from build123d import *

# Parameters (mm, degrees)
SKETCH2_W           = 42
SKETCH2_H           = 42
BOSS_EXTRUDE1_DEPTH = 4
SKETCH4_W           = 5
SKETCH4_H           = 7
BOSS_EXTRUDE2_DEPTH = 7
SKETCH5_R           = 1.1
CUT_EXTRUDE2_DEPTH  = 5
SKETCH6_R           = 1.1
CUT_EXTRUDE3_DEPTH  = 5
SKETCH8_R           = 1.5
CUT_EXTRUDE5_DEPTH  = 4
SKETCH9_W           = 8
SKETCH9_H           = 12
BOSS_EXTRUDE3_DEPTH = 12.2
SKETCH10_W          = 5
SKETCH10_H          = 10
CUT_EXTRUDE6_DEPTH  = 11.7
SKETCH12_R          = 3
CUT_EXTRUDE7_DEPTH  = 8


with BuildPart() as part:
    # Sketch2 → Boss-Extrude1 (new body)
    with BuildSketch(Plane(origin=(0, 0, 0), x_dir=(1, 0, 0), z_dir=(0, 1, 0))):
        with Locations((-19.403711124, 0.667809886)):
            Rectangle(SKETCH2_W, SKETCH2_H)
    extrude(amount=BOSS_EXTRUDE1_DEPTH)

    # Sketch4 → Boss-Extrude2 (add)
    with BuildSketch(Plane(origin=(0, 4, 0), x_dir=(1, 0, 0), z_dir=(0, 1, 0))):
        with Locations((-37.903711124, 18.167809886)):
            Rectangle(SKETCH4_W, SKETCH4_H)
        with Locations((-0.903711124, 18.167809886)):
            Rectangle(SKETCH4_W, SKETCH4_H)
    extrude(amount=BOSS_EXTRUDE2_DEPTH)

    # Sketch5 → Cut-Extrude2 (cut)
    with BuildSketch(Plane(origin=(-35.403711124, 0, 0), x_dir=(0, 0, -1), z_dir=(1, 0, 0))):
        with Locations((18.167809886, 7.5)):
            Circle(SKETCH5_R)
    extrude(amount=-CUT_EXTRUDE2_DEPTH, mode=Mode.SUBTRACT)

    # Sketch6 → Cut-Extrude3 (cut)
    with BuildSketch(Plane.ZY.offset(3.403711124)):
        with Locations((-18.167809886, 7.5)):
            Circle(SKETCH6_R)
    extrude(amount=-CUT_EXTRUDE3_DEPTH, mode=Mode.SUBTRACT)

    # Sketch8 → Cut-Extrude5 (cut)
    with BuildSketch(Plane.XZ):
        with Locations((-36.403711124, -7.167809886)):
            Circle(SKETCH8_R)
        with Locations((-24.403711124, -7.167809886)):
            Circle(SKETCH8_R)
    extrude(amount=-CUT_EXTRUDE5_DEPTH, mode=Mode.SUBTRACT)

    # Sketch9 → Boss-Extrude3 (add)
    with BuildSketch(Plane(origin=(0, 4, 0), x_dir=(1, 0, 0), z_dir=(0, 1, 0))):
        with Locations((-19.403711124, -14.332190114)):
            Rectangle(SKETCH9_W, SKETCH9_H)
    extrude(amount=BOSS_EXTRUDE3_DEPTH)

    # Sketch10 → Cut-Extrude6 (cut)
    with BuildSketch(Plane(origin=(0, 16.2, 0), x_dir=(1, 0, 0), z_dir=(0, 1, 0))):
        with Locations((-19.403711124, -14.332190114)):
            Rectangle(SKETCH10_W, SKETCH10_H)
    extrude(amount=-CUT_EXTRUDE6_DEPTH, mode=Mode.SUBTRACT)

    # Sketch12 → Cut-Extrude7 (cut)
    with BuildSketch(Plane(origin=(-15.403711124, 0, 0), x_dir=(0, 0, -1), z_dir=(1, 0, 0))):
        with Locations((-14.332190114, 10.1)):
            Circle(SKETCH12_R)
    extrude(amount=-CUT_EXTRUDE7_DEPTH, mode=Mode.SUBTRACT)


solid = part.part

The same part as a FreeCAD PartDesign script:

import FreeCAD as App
import Part
import Sketcher
from FreeCAD import Vector

doc = App.newDocument("Part")
body = doc.addObject("PartDesign::Body", "Body")

sketch1 = body.newObject("Sketcher::SketchObject", "Sketch")
sketch1.AttachmentSupport = (doc.getObject("XZ_Plane"), [""])
sketch1.MapMode = "FlatFace"
sketch1.addGeometry(Part.LineSegment(Vector(-40, -22, 0), Vector(-40, 20, 0)), False)
sketch1.addGeometry(Part.LineSegment(Vector(-40, 20, 0), Vector(2, 20, 0)), False)
sketch1.addGeometry(Part.LineSegment(Vector(2, 20, 0), Vector(2, -22, 0)), False)
sketch1.addGeometry(Part.LineSegment(Vector(2, -22, 0), Vector(-40, -22, 0)), False)
sketch1.addConstraint(Sketcher.Constraint("Coincident", 0, 2, 1, 1))
sketch1.addConstraint(Sketcher.Constraint("Coincident", 1, 2, 2, 1))
sketch1.addConstraint(Sketcher.Constraint("Coincident", 2, 2, 3, 1))
sketch1.addConstraint(Sketcher.Constraint("Coincident", 3, 2, 0, 1))
sketch1.addConstraint(Sketcher.Constraint("Vertical", 0))
sketch1.addConstraint(Sketcher.Constraint("Horizontal", 1))
sketch1.addConstraint(Sketcher.Constraint("Vertical", 2))
sketch1.addConstraint(Sketcher.Constraint("Horizontal", 3))
sketch1.addConstraint(Sketcher.Constraint("Equal", 3, 0))
sketch1.addConstraint(Sketcher.Constraint("DistanceX", 1, 1, 1, 2, 42.0))
sketch1.addConstraint(Sketcher.Constraint("DistanceX", 0, 2, -1, 1, 40.403711))
sketch1.addConstraint(Sketcher.Constraint("DistanceY", -1, 1, 0, 2, 20.33219))
pad1 = body.newObject("PartDesign::Pad", "Pad")
pad1.Profile = sketch1
pad1.Length = 4
pad1.Reversed = True

sketch2 = body.newObject("Sketcher::SketchObject", "Sketch001")
sketch2.AttachmentSupport = (doc.getObject("XZ_Plane"), [""])
sketch2.MapMode = "FlatFace"
sketch2.AttachmentOffset = App.Placement(Vector(0, 0, -4), App.Rotation())
sketch2.addGeometry(Part.LineSegment(Vector(-40, -22, 0), Vector(-40, -15, 0)), False)
sketch2.addGeometry(Part.LineSegment(Vector(-40, -15, 0), Vector(-35, -15, 0)), False)
sketch2.addGeometry(Part.LineSegment(Vector(-35, -15, 0), Vector(-35, -22, 0)), False)
sketch2.addGeometry(Part.LineSegment(Vector(-35, -22, 0), Vector(-40, -22, 0)), False)
sketch2.addGeometry(Part.LineSegment(Vector(-3, -22, 0), Vector(-3, -15, 0)), False)
sketch2.addGeometry(Part.LineSegment(Vector(-3, -15, 0), Vector(2, -15, 0)), False)
sketch2.addGeometry(Part.LineSegment(Vector(2, -15, 0), Vector(2, -22, 0)), False)
sketch2.addGeometry(Part.LineSegment(Vector(2, -22, 0), Vector(-3, -22, 0)), False)
sketch2.addConstraint(Sketcher.Constraint("Coincident", 0, 2, 1, 1))
sketch2.addConstraint(Sketcher.Constraint("Coincident", 1, 2, 2, 1))
sketch2.addConstraint(Sketcher.Constraint("Coincident", 2, 2, 3, 1))
sketch2.addConstraint(Sketcher.Constraint("Coincident", 3, 2, 0, 1))
sketch2.addConstraint(Sketcher.Constraint("Coincident", 4, 2, 5, 1))
sketch2.addConstraint(Sketcher.Constraint("Coincident", 5, 2, 6, 1))
sketch2.addConstraint(Sketcher.Constraint("Coincident", 6, 2, 7, 1))
sketch2.addConstraint(Sketcher.Constraint("Coincident", 7, 2, 4, 1))
sketch2.addConstraint(Sketcher.Constraint("Vertical", 0))
sketch2.addConstraint(Sketcher.Constraint("Horizontal", 1))
sketch2.addConstraint(Sketcher.Constraint("Vertical", 2))
sketch2.addConstraint(Sketcher.Constraint("Horizontal", 3))
sketch2.addConstraint(Sketcher.Constraint("Vertical", 4))
sketch2.addConstraint(Sketcher.Constraint("Horizontal", 5))
sketch2.addConstraint(Sketcher.Constraint("Vertical", 6))
sketch2.addConstraint(Sketcher.Constraint("Horizontal", 7))
sketch2.addConstraint(Sketcher.Constraint("Horizontal", 1, 2, 4, 2))
sketch2.addConstraint(Sketcher.Constraint("Horizontal", 3, 2, 6, 2))
sketch2.addConstraint(Sketcher.Constraint("Equal", 3, 5))
sketch2.addConstraint(Sketcher.Constraint("DistanceX", 1, 1, 1, 2, 5.0))
sketch2.addConstraint(Sketcher.Constraint("DistanceY", 0, 1, 0, 2, 7.0))
sketch2.addConstraint(Sketcher.Constraint("DistanceX", 1, 2, 4, 2, 32.0))
sketch2.addConstraint(Sketcher.Constraint("DistanceX", 0, 2, -1, 1, 40.403711))
sketch2.addConstraint(Sketcher.Constraint("DistanceY", 0, 2, -1, 1, 14.66781))
pad2 = body.newObject("PartDesign::Pad", "Pad001")
pad2.Profile = sketch2
pad2.Length = 7
pad2.Reversed = True

sketch3 = body.newObject("Sketcher::SketchObject", "Sketch002")
sketch3.AttachmentSupport = (doc.getObject("YZ_Plane"), [""])
sketch3.MapMode = "FlatFace"
sketch3.AttachmentOffset = App.Placement(Vector(0, 0, -35.403711), App.Rotation())
sketch3.addGeometry(Part.Circle(Vector(7.5, -18.2, 0), Vector(0, 0, 1), 1.1), False)
sketch3.addConstraint(Sketcher.Constraint("Diameter", 0, 2.2))
sketch3.addConstraint(Sketcher.Constraint("DistanceX", -1, 1, 0, 3, 7.5))
sketch3.addConstraint(Sketcher.Constraint("DistanceY", 0, 3, -1, 1, 18.16781))
pocket1 = body.newObject("PartDesign::Pocket", "Pocket")
pocket1.Profile = sketch3
pocket1.Length = 5

sketch4 = body.newObject("Sketcher::SketchObject", "Sketch003")
sketch4.AttachmentSupport = (doc.getObject("YZ_Plane"), [""])
sketch4.MapMode = "FlatFace"
sketch4.AttachmentOffset = App.Placement(Vector(0, 0, -3.403711), App.Rotation())
sketch4.addGeometry(Part.Circle(Vector(7.5, -18.2, 0), Vector(0, 0, 1), 1.1), False)
sketch4.addConstraint(Sketcher.Constraint("Diameter", 0, 2.2))
sketch4.addConstraint(Sketcher.Constraint("DistanceX", -1, 1, 0, 3, 7.5))
sketch4.addConstraint(Sketcher.Constraint("DistanceY", 0, 3, -1, 1, 18.16781))
pocket2 = body.newObject("PartDesign::Pocket", "Pocket001")
pocket2.Profile = sketch4
pocket2.Length = 5
pocket2.Reversed = True

sketch5 = body.newObject("Sketcher::SketchObject", "Sketch004")
sketch5.AttachmentSupport = (doc.getObject("XZ_Plane"), [""])
sketch5.MapMode = "FlatFace"
sketch5.addGeometry(Part.Circle(Vector(-36.4, -7.2, 0), Vector(0, 0, 1), 1.5), False)
sketch5.addGeometry(Part.Circle(Vector(-24.4, -7.2, 0), Vector(0, 0, 1), 1.5), False)
sketch5.addConstraint(Sketcher.Constraint("Equal", 0, 1))
sketch5.addConstraint(Sketcher.Constraint("Horizontal", 0, 3, 1, 3))
sketch5.addConstraint(Sketcher.Constraint("Diameter", 0, 3.0))
sketch5.addConstraint(Sketcher.Constraint("DistanceX", 0, 3, 1, 3, 12.0))
sketch5.addConstraint(Sketcher.Constraint("DistanceX", 0, 3, -1, 1, 36.403711))
sketch5.addConstraint(Sketcher.Constraint("DistanceY", 0, 3, -1, 1, 7.16781))
pocket3 = body.newObject("PartDesign::Pocket", "Pocket002")
pocket3.Profile = sketch5
pocket3.Length = 4

sketch6 = body.newObject("Sketcher::SketchObject", "Sketch005")
sketch6.AttachmentSupport = (doc.getObject("XZ_Plane"), [""])
sketch6.MapMode = "FlatFace"
sketch6.AttachmentOffset = App.Placement(Vector(0, 0, -4), App.Rotation())
sketch6.addGeometry(Part.LineSegment(Vector(-23, 8, 0), Vector(-23, 20, 0)), False)
sketch6.addGeometry(Part.LineSegment(Vector(-23, 20, 0), Vector(-15, 20, 0)), False)
sketch6.addGeometry(Part.LineSegment(Vector(-15, 20, 0), Vector(-15, 8, 0)), False)
sketch6.addGeometry(Part.LineSegment(Vector(-15, 8, 0), Vector(-23, 8, 0)), False)
sketch6.addConstraint(Sketcher.Constraint("Coincident", 0, 2, 1, 1))
sketch6.addConstraint(Sketcher.Constraint("Coincident", 1, 2, 2, 1))
sketch6.addConstraint(Sketcher.Constraint("Coincident", 2, 2, 3, 1))
sketch6.addConstraint(Sketcher.Constraint("Coincident", 3, 2, 0, 1))
sketch6.addConstraint(Sketcher.Constraint("Vertical", 0))
sketch6.addConstraint(Sketcher.Constraint("Horizontal", 1))
sketch6.addConstraint(Sketcher.Constraint("Vertical", 2))
sketch6.addConstraint(Sketcher.Constraint("Horizontal", 3))
sketch6.addConstraint(Sketcher.Constraint("DistanceX", 1, 1, 1, 2, 8.0))
sketch6.addConstraint(Sketcher.Constraint("DistanceY", 0, 1, 0, 2, 12.0))
sketch6.addConstraint(Sketcher.Constraint("DistanceX", 0, 2, -1, 1, 23.403711))
sketch6.addConstraint(Sketcher.Constraint("DistanceY", -1, 1, 0, 2, 20.33219))
pad3 = body.newObject("PartDesign::Pad", "Pad002")
pad3.Profile = sketch6
pad3.Length = 12.2
pad3.Reversed = True

sketch7 = body.newObject("Sketcher::SketchObject", "Sketch006")
sketch7.AttachmentSupport = (doc.getObject("XZ_Plane"), [""])
sketch7.MapMode = "FlatFace"
sketch7.AttachmentOffset = App.Placement(Vector(0, 0, -16.2), App.Rotation())
sketch7.addGeometry(Part.LineSegment(Vector(-22, 9, 0), Vector(-22, 19, 0)), False)
sketch7.addGeometry(Part.LineSegment(Vector(-22, 19, 0), Vector(-17, 19, 0)), False)
sketch7.addGeometry(Part.LineSegment(Vector(-17, 19, 0), Vector(-17, 9, 0)), False)
sketch7.addGeometry(Part.LineSegment(Vector(-17, 9, 0), Vector(-22, 9, 0)), False)
sketch7.addConstraint(Sketcher.Constraint("Coincident", 0, 2, 1, 1))
sketch7.addConstraint(Sketcher.Constraint("Coincident", 1, 2, 2, 1))
sketch7.addConstraint(Sketcher.Constraint("Coincident", 2, 2, 3, 1))
sketch7.addConstraint(Sketcher.Constraint("Coincident", 3, 2, 0, 1))
sketch7.addConstraint(Sketcher.Constraint("Vertical", 0))
sketch7.addConstraint(Sketcher.Constraint("Horizontal", 1))
sketch7.addConstraint(Sketcher.Constraint("Vertical", 2))
sketch7.addConstraint(Sketcher.Constraint("Horizontal", 3))
sketch7.addConstraint(Sketcher.Constraint("DistanceX", 1, 1, 1, 2, 5.0))
sketch7.addConstraint(Sketcher.Constraint("DistanceY", 0, 1, 0, 2, 10.0))
sketch7.addConstraint(Sketcher.Constraint("DistanceX", 0, 2, -1, 1, 21.903711))
sketch7.addConstraint(Sketcher.Constraint("DistanceY", -1, 1, 0, 2, 19.33219))
pocket4 = body.newObject("PartDesign::Pocket", "Pocket003")
pocket4.Profile = sketch7
pocket4.Length = 11.7
pocket4.Reversed = True

sketch8 = body.newObject("Sketcher::SketchObject", "Sketch007")
sketch8.AttachmentSupport = (doc.getObject("YZ_Plane"), [""])
sketch8.MapMode = "FlatFace"
sketch8.AttachmentOffset = App.Placement(Vector(0, 0, -15.403711), App.Rotation())
sketch8.addGeometry(Part.Circle(Vector(10.1, 14.3, 0), Vector(0, 0, 1), 3), False)
sketch8.addConstraint(Sketcher.Constraint("Diameter", 0, 6.0))
sketch8.addConstraint(Sketcher.Constraint("DistanceX", -1, 1, 0, 3, 10.1))
sketch8.addConstraint(Sketcher.Constraint("DistanceY", -1, 1, 0, 3, 14.33219))
pocket5 = body.newObject("PartDesign::Pocket", "Pocket004")
pocket5.Profile = sketch8
pocket5.Length = 8

doc.recompute()
